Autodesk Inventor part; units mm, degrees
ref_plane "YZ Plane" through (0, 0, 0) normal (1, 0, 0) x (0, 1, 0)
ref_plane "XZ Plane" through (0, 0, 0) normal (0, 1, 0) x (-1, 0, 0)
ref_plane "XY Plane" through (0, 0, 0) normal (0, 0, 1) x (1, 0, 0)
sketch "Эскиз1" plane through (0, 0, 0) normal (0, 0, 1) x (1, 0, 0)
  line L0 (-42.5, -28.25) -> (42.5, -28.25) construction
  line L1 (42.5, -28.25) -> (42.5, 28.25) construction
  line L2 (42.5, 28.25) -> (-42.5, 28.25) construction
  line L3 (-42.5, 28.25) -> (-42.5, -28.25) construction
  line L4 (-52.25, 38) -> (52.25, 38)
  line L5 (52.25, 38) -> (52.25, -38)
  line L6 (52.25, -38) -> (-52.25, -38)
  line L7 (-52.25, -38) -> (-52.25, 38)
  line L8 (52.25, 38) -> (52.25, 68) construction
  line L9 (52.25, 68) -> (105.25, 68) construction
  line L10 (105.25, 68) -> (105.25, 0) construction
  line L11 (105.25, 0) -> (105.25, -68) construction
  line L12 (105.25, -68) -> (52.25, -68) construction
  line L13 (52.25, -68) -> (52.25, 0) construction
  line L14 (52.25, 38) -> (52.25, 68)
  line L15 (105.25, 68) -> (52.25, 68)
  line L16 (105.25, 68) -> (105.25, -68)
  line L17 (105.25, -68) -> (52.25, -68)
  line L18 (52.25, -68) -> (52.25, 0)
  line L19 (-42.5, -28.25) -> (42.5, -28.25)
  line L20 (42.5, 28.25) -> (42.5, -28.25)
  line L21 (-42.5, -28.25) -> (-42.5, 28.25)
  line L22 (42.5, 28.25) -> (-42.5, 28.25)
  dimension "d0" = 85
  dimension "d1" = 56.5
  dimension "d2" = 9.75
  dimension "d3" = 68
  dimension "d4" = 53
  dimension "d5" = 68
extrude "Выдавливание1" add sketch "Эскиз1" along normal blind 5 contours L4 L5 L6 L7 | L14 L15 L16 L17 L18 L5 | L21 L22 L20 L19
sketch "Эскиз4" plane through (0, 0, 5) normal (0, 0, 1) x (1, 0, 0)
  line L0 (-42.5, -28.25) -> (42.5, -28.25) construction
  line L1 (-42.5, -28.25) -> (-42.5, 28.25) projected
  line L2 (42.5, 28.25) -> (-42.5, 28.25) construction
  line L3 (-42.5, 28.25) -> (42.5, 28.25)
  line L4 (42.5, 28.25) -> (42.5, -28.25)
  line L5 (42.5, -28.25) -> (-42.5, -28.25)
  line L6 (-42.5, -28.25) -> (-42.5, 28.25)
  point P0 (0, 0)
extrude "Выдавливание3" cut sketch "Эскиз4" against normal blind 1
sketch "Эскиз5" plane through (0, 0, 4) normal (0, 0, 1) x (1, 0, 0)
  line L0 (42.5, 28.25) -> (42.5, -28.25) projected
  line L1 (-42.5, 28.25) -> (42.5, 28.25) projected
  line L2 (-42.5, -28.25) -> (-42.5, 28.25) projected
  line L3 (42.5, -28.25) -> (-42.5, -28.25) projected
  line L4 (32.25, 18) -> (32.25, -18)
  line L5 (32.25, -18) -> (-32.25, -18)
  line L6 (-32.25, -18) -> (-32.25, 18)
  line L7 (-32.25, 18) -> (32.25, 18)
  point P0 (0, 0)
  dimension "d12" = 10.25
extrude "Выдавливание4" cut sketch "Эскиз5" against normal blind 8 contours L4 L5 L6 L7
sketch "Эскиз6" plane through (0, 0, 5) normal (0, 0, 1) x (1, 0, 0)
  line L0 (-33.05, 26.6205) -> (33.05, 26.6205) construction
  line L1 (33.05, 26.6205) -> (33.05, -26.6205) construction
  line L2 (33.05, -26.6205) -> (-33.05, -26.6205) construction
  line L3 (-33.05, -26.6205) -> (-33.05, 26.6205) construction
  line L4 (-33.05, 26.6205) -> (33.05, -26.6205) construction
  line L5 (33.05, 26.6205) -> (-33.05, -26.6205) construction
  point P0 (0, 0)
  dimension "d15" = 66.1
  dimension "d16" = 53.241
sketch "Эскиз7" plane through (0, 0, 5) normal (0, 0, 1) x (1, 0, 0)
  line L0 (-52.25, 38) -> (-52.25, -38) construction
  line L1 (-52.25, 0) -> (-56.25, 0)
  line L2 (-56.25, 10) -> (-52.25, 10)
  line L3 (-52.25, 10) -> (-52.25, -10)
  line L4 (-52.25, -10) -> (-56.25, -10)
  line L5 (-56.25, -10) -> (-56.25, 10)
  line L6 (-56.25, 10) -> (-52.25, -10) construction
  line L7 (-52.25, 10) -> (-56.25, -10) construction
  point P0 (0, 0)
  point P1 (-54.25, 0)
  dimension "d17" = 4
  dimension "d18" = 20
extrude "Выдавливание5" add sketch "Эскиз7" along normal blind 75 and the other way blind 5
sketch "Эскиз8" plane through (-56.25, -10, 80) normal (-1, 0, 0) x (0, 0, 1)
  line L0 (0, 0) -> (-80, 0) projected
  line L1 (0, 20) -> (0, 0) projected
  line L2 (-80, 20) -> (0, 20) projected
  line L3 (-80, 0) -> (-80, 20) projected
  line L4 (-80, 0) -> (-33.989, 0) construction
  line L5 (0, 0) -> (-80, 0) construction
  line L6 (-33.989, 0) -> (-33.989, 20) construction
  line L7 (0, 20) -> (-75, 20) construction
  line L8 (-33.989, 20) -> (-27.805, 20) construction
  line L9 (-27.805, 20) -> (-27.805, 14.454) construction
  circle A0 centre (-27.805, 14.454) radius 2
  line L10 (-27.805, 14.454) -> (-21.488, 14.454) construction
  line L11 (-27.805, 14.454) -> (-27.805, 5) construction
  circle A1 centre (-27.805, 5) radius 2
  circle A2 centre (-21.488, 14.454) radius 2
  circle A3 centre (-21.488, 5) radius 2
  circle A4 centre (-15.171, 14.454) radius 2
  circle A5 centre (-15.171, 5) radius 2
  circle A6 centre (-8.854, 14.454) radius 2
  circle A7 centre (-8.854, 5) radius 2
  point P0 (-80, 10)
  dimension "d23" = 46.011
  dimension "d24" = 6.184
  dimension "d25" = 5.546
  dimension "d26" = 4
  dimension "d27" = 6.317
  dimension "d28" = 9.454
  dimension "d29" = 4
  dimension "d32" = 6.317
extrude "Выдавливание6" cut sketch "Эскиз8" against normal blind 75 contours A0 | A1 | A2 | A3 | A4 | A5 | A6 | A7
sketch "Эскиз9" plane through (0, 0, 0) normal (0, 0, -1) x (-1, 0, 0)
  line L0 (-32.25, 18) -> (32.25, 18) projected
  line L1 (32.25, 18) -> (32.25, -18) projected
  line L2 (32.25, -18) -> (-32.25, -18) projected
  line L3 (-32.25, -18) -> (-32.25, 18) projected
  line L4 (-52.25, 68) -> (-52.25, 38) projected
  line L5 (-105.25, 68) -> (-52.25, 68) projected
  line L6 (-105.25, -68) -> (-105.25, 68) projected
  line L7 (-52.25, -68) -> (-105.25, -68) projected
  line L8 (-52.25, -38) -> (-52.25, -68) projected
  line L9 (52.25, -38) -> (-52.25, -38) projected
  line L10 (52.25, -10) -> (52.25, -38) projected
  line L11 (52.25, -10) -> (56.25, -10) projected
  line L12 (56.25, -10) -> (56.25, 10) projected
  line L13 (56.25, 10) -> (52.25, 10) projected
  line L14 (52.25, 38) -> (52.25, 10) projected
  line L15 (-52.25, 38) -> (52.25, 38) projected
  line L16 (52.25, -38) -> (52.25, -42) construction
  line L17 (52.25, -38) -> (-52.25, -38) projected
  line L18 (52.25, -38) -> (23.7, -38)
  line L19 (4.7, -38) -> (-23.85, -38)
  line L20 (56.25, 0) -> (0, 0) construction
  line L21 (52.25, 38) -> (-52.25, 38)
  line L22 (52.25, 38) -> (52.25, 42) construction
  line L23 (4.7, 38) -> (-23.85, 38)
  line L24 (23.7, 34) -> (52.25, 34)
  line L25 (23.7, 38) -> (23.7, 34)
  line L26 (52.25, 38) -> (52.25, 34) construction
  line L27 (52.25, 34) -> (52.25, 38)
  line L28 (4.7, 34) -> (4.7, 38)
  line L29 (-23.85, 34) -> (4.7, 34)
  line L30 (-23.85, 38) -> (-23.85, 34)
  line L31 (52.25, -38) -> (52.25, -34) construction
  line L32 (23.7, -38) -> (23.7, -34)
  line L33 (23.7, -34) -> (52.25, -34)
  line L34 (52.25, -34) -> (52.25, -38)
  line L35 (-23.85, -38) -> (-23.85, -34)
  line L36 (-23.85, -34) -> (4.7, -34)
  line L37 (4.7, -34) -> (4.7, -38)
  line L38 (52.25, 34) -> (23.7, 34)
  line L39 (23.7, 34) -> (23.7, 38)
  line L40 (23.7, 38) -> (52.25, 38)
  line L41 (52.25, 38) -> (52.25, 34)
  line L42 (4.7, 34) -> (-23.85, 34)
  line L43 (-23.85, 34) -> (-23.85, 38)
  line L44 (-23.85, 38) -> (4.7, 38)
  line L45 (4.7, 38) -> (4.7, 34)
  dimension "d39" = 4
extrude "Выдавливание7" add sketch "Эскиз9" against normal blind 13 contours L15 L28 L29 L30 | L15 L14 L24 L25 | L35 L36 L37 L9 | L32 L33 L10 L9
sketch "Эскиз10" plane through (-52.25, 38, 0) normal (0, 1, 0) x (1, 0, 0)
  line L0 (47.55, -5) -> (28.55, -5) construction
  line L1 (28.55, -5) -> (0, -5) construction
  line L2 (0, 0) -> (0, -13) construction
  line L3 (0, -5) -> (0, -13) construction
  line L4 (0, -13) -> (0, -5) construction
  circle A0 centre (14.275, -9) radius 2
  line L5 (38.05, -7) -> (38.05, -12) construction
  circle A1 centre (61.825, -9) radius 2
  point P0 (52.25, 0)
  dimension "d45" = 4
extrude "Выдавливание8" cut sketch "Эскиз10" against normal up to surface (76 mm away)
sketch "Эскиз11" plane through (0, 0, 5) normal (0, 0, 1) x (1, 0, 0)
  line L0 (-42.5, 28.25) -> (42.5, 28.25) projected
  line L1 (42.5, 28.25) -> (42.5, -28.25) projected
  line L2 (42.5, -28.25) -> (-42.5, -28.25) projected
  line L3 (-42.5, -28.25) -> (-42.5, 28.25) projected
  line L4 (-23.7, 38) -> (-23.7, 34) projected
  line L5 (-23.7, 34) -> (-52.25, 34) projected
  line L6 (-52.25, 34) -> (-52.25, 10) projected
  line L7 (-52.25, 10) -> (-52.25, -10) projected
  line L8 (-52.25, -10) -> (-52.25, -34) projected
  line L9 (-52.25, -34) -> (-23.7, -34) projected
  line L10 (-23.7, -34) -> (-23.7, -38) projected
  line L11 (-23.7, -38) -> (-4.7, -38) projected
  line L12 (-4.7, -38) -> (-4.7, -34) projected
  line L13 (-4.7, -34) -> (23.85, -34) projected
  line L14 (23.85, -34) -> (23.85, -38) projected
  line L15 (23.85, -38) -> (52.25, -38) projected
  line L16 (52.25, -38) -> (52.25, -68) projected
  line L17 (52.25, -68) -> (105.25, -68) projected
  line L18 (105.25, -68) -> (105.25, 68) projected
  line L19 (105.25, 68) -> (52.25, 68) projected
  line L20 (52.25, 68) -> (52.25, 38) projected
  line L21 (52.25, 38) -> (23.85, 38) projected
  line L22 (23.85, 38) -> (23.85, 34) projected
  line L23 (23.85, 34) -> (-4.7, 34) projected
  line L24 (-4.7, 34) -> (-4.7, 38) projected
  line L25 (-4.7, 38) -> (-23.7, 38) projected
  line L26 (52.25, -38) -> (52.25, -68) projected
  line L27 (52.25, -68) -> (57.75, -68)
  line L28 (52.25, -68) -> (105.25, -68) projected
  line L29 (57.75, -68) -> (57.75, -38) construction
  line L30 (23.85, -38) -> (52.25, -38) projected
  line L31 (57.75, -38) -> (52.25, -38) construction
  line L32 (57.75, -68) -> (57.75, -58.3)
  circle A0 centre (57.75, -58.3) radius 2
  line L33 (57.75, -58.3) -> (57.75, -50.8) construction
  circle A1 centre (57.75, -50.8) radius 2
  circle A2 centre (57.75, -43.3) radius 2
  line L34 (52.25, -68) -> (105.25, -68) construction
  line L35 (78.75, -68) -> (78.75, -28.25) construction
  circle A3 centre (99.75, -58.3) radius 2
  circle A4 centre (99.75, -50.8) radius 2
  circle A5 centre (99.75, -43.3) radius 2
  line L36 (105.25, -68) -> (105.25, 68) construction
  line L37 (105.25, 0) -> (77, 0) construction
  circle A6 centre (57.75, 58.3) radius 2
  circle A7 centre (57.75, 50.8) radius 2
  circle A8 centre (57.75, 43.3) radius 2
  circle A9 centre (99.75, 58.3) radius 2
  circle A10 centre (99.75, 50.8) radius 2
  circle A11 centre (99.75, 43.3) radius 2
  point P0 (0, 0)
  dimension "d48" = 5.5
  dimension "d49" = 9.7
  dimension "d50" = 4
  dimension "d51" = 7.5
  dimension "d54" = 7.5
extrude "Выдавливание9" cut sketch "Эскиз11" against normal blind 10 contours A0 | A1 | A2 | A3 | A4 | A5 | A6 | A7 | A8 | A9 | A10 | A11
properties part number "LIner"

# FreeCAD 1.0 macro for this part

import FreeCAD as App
import Part
import Sketcher

doc = App.newDocument("Part")
body = doc.addObject("PartDesign::Body", "Body")

# Sketch on XY plane
sketch1 = doc.addObject("Sketcher::SketchObject", "Sketch")
body.addObject(sketch1)
sketch1.AttachmentSupport = (doc.XY_Plane, [""])
sketch1.MapMode = "FlatFace"
sketch1.addGeometry(Part.LineSegment(App.Vector(52, 38, 0), App.Vector(-52, 38, 0)), False)
sketch1.addGeometry(Part.LineSegment(App.Vector(-52, 38, 0), App.Vector(-52, -38, 0)), False)
sketch1.addGeometry(Part.LineSegment(App.Vector(-52, -38, 0), App.Vector(52, -38, 0)), False)
sketch1.addGeometry(Part.LineSegment(App.Vector(52, -38, 0), App.Vector(52, -68, 0)), False)
sketch1.addGeometry(Part.LineSegment(App.Vector(52, -68, 0), App.Vector(105, -68, 0)), False)
sketch1.addGeometry(Part.LineSegment(App.Vector(105, -68, 0), App.Vector(105, 68, 0)), False)
sketch1.addGeometry(Part.LineSegment(App.Vector(105, 68, 0), App.Vector(52, 68, 0)), False)
sketch1.addGeometry(Part.LineSegment(App.Vector(52, 68, 0), App.Vector(52, 38, 0)), False)
sketch1.addConstraint(Sketcher.Constraint("Coincident", 0, 2, 1, 1))
sketch1.addConstraint(Sketcher.Constraint("Coincident", 1, 2, 2, 1))
sketch1.addConstraint(Sketcher.Constraint("Coincident", 2, 2, 3, 1))
sketch1.addConstraint(Sketcher.Constraint("Coincident", 3, 2, 4, 1))
sketch1.addConstraint(Sketcher.Constraint("Coincident", 4, 2, 5, 1))
sketch1.addConstraint(Sketcher.Constraint("Coincident", 5, 2, 6, 1))
sketch1.addConstraint(Sketcher.Constraint("Coincident", 6, 2, 7, 1))
sketch1.addConstraint(Sketcher.Constraint("Coincident", 7, 2, 0, 1))
sketch1.addConstraint(Sketcher.Constraint("Horizontal", 0))
sketch1.addConstraint(Sketcher.Constraint("Vertical", 1))
sketch1.addConstraint(Sketcher.Constraint("Horizontal", 2))
sketch1.addConstraint(Sketcher.Constraint("Vertical", 3))
sketch1.addConstraint(Sketcher.Constraint("Horizontal", 4))
sketch1.addConstraint(Sketcher.Constraint("Vertical", 5))
sketch1.addConstraint(Sketcher.Constraint("Horizontal", 6))
sketch1.addConstraint(Sketcher.Constraint("Vertical", 7))
sketch1.addConstraint(Sketcher.Constraint("Symmetric", 0, 2, 2, 2, -1, 1))
sketch1.addConstraint(Sketcher.Constraint("Symmetric", 3, 2, 6, 2, -1))
sketch1.addConstraint(Sketcher.Constraint("DistanceX", 4, 1, 4, 2, 53.0))
sketch1.addConstraint(Sketcher.Constraint("DistanceY", 3, 2, -1, 1, 68.0))
sketch1.addConstraint(Sketcher.Constraint("DistanceY", 1, 2, 1, 1, 76.0))
sketch1.addConstraint(Sketcher.Constraint("DistanceX", 0, 2, 0, 1, 104.5))
pad1 = doc.addObject("PartDesign::Pad", "Pad")
body.addObject(pad1)
pad1.Profile = sketch1
pad1.Length = 5

# Sketch on XY plane
sketch2 = doc.addObject("Sketcher::SketchObject", "Sketch001")
body.addObject(sketch2)
sketch2.AttachmentSupport = (doc.XY_Plane, [""])
sketch2.MapMode = "FlatFace"
sketch2.AttachmentOffset = App.Placement(App.Vector(0, 0, 5), App.Rotation())
sketch2.addGeometry(Part.LineSegment(App.Vector(-42, 28, 0), App.Vector(-42, -28, 0)), False)
sketch2.addGeometry(Part.LineSegment(App.Vector(-42, -28, 0), App.Vector(42, -28, 0)), False)
sketch2.addGeometry(Part.LineSegment(App.Vector(42, -28, 0), App.Vector(42, 28, 0)), False)
sketch2.addGeometry(Part.LineSegment(App.Vector(42, 28, 0), App.Vector(-42, 28, 0)), False)
sketch2.addConstraint(Sketcher.Constraint("Coincident", 0, 2, 1, 1))
sketch2.addConstraint(Sketcher.Constraint("Coincident", 1, 2, 2, 1))
sketch2.addConstraint(Sketcher.Constraint("Coincident", 2, 2, 3, 1))
sketch2.addConstraint(Sketcher.Constraint("Coincident", 3, 2, 0, 1))
sketch2.addConstraint(Sketcher.Constraint("Vertical", 0))
sketch2.addConstraint(Sketcher.Constraint("Horizontal", 1))
sketch2.addConstraint(Sketcher.Constraint("Vertical", 2))
sketch2.addConstraint(Sketcher.Constraint("Horizontal", 3))
sketch2.addConstraint(Sketcher.Constraint("Symmetric", 0, 2, 2, 2, -1, 1))
sketch2.addConstraint(Sketcher.Constraint("DistanceX", 1, 1, 1, 2, 85.0))
sketch2.addConstraint(Sketcher.Constraint("DistanceY", 0, 2, 0, 1, 56.5))
pocket1 = doc.addObject("PartDesign::Pocket", "Pocket")
body.addObject(pocket1)
pocket1.Profile = sketch2
pocket1.Length = 1

# Sketch on XY plane
sketch3 = doc.addObject("Sketcher::SketchObject", "Sketch002")
body.addObject(sketch3)
sketch3.AttachmentSupport = (doc.XY_Plane, [""])
sketch3.MapMode = "FlatFace"
sketch3.AttachmentOffset = App.Placement(App.Vector(0, 0, 4), App.Rotation())
sketch3.addGeometry(Part.LineSegment(App.Vector(32, -18, 0), App.Vector(32, 18, 0)), False)
sketch3.addGeometry(Part.LineSegment(App.Vector(32, 18, 0), App.Vector(-32, 18, 0)), False)
sketch3.addGeometry(Part.LineSegment(App.Vector(-32, 18, 0), App.Vector(-32, -18, 0)), False)
sketch3.addGeometry(Part.LineSegment(App.Vector(-32, -18, 0), App.Vector(32, -18, 0)), False)
sketch3.addConstraint(Sketcher.Constraint("Coincident", 0, 2, 1, 1))
sketch3.addConstraint(Sketcher.Constraint("Coincident", 1, 2, 2, 1))
sketch3.addConstraint(Sketcher.Constraint("Coincident", 2, 2, 3, 1))
sketch3.addConstraint(Sketcher.Constraint("Coincident", 3, 2, 0, 1))
sketch3.addConstraint(Sketcher.Constraint("Vertical", 0))
sketch3.addConstraint(Sketcher.Constraint("Horizontal", 1))
sketch3.addConstraint(Sketcher.Constraint("Vertical", 2))
sketch3.addConstraint(Sketcher.Constraint("Horizontal", 3))
sketch3.addConstraint(Sketcher.Constraint("Symmetric", 0, 2, 2, 2, -1, 1))
sketch3.addConstraint(Sketcher.Constraint("DistanceY", 0, 1, 0, 2, 36.0))
sketch3.addConstraint(Sketcher.Constraint("DistanceX", 1, 2, 1, 1, 64.5))
pocket2 = doc.addObject("PartDesign::Pocket", "Pocket001")
body.addObject(pocket2)
pocket2.Profile = sketch3
pocket2.Length = 8

# Sketch on XY plane
sketch4 = doc.addObject("Sketcher::SketchObject", "Sketch003")
body.addObject(sketch4)
sketch4.AttachmentSupport = (doc.XY_Plane, [""])
sketch4.MapMode = "FlatFace"
sketch4.AttachmentOffset = App.Placement(App.Vector(0, 0, 5), App.Rotation())
sketch4.addGeometry(Part.LineSegment(App.Vector(-52.2, -10, 0), App.Vector(-52.2, 10, 0)), False)
sketch4.addGeometry(Part.LineSegment(App.Vector(-52.2, 10, 0), App.Vector(-56.2, 10, 0)), False)
sketch4.addGeometry(Part.LineSegment(App.Vector(-56.2, 10, 0), App.Vector(-56.2, -10, 0)), False)
sketch4.addGeometry(Part.LineSegment(App.Vector(-56.2, -10, 0), App.Vector(-52.2, -10, 0)), False)
sketch4.addConstraint(Sketcher.Constraint("Coincident", 0, 2, 1, 1))
sketch4.addConstraint(Sketcher.Constraint("Coincident", 1, 2, 2, 1))
sketch4.addConstraint(Sketcher.Constraint("Coincident", 2, 2, 3, 1))
sketch4.addConstraint(Sketcher.Constraint("Coincident", 3, 2, 0, 1))
sketch4.addConstraint(Sketcher.Constraint("Vertical", 0))
sketch4.addConstraint(Sketcher.Constraint("Horizontal", 1))
sketch4.addConstraint(Sketcher.Constraint("Vertical", 2))
sketch4.addConstraint(Sketcher.Constraint("Horizontal", 3))
sketch4.addConstraint(Sketcher.Constraint("DistanceX", 1, 2, 1, 1, 4.0))
sketch4.addConstraint(Sketcher.Constraint("DistanceY", 0, 1, 0, 2, 20.0))
sketch4.addConstraint(Sketcher.Constraint("DistanceY", -1, 1, 0, 2, 10.0))
sketch4.addConstraint(Sketcher.Constraint("DistanceX", 0, 2, -1, 1, 52.25))
pad2 = doc.addObject("PartDesign::Pad", "Pad001")
body.addObject(pad2)
pad2.Profile = sketch4
pad2.Type = "TwoLengths"
pad2.Length = 75
pad2.Length2 = 5

# Sketch on YZ plane
sketch5 = doc.addObject("Sketcher::SketchObject", "Sketch004")
body.addObject(sketch5)
sketch5.AttachmentSupport = (doc.YZ_Plane, [""])
sketch5.MapMode = "FlatFace"
sketch5.AttachmentOffset = App.Placement(App.Vector(0, 0, -56.25), App.Rotation())
sketch5.addGeometry(Part.Circle(App.Vector(4.5, 52.2, 0), App.Vector(0, 0, 1), 2), False)
sketch5.addGeometry(Part.Circle(App.Vector(-5, 52.2, 0), App.Vector(0, 0, 1), 2), False)
sketch5.addGeometry(Part.Circle(App.Vector(4.5, 58.5, 0), App.Vector(0, 0, 1), 2), False)
sketch5.addGeometry(Part.Circle(App.Vector(-5, 58.5, 0), App.Vector(0, 0, 1), 2), False)
sketch5.addGeometry(Part.Circle(App.Vector(4.5, 64.8, 0), App.Vector(0, 0, 1), 2), False)
sketch5.addGeometry(Part.Circle(App.Vector(-5, 64.8, 0), App.Vector(0, 0, 1), 2), False)
sketch5.addGeometry(Part.Circle(App.Vector(4.5, 71.1, 0), App.Vector(0, 0, 1), 2), False)
sketch5.addGeometry(Part.Circle(App.Vector(-5, 71.1, 0), App.Vector(0, 0, 1), 2), False)
sketch5.addConstraint(Sketcher.Constraint("Equal", 0, 1))
sketch5.addConstraint(Sketcher.Constraint("Equal", 1, 2))
sketch5.addConstraint(Sketcher.Constraint("Equal", 2, 3))
sketch5.addConstraint(Sketcher.Constraint("Equal", 3, 4))
sketch5.addConstraint(Sketcher.Constraint("Equal", 4, 5))
sketch5.addConstraint(Sketcher.Constraint("Equal", 5, 6))
sketch5.addConstraint(Sketcher.Constraint("Equal", 6, 7))
sketch5.addConstraint(Sketcher.Constraint("Horizontal", 0, 3, 1, 3))
sketch5.addConstraint(Sketcher.Constraint("Horizontal", 2, 3, 3, 3))
sketch5.addConstraint(Sketcher.Constraint("Horizontal", 4, 3, 5, 3))
sketch5.addConstraint(Sketcher.Constraint("Horizontal", 6, 3, 7, 3))
sketch5.addConstraint(Sketcher.Constraint("Vertical", 0, 3, 2, 3))
sketch5.addConstraint(Sketcher.Constraint("Vertical", 1, 3, 3, 3))
sketch5.addConstraint(Sketcher.Constraint("Vertical", 2, 3, 4, 3))
sketch5.addConstraint(Sketcher.Constraint("Vertical", 3, 3, 5, 3))
sketch5.addConstraint(Sketcher.Constraint("Vertical", 4, 3, 6, 3))
sketch5.addConstraint(Sketcher.Constraint("Vertical", 5, 3, 7, 3))
sketch5.addConstraint(Sketcher.Constraint("Diameter", 0, 4.0))
sketch5.addConstraint(Sketcher.Constraint("DistanceX", 1, 3, -1, 1, 5.0))
sketch5.addConstraint(Sketcher.Constraint("DistanceX", 1, 3, 0, 3, 9.454))
sketch5.addConstraint(Sketcher.Constraint("DistanceY", 0, 3, 2, 3, 6.317))
sketch5.addConstraint(Sketcher.Constraint("DistanceY", 2, 3, 4, 3, 6.317))
sketch5.addConstraint(Sketcher.Constraint("DistanceY", 4, 3, 6, 3, 6.317))
sketch5.addConstraint(Sketcher.Constraint("DistanceY", -1, 1, 0, 3, 52.195))
pocket3 = doc.addObject("PartDesign::Pocket", "Pocket002")
body.addObject(pocket3)
pocket3.Profile = sketch5
pocket3.Length = 75
pocket3.Reversed = True

# Sketch on XY plane
sketch6 = doc.addObject("Sketcher::SketchObject", "Sketch005")
body.addObject(sketch6)
sketch6.AttachmentSupport = (doc.XY_Plane, [""])
sketch6.MapMode = "FlatFace"
sketch6.addGeometry(Part.LineSegment(App.Vector(-4.7, 38, 0), App.Vector(23.9, 38, 0)), False)
sketch6.addGeometry(Part.LineSegment(App.Vector(23.9, 38, 0), App.Vector(23.9, 34, 0)), False)
sketch6.addGeometry(Part.LineSegment(App.Vector(23.9, 34, 0), App.Vector(-4.7, 34, 0)), False)
sketch6.addGeometry(Part.LineSegment(App.Vector(-4.7, 34, 0), App.Vector(-4.7, 38, 0)), False)
sketch6.addGeometry(Part.LineSegment(App.Vector(-52.2, 38, 0), App.Vector(-23.7, 38, 0)), False)
sketch6.addGeometry(Part.LineSegment(App.Vector(-23.7, 38, 0), App.Vector(-23.7, 34, 0)), False)
sketch6.addGeometry(Part.LineSegment(App.Vector(-23.7, 34, 0), App.Vector(-52.2, 34, 0)), False)
sketch6.addGeometry(Part.LineSegment(App.Vector(-52.2, 34, 0), App.Vector(-52.2, 38, 0)), False)
sketch6.addGeometry(Part.LineSegment(App.Vector(23.9, -34, 0), App.Vector(23.9, -38, 0)), False)
sketch6.addGeometry(Part.LineSegment(App.Vector(23.9, -38, 0), App.Vector(-4.7, -38, 0)), False)
sketch6.addGeometry(Part.LineSegment(App.Vector(-4.7, -38, 0), App.Vector(-4.7, -34, 0)), False)
sketch6.addGeometry(Part.LineSegment(App.Vector(-4.7, -34, 0), App.Vector(23.9, -34, 0)), False)
sketch6.addGeometry(Part.LineSegment(App.Vector(-23.7, -34, 0), App.Vector(-23.7, -38, 0)), False)
sketch6.addGeometry(Part.LineSegment(App.Vector(-23.7, -38, 0), App.Vector(-52.2, -38, 0)), False)
sketch6.addGeometry(Part.LineSegment(App.Vector(-52.2, -38, 0), App.Vector(-52.2, -34, 0)), False)
sketch6.addGeometry(Part.LineSegment(App.Vector(-52.2, -34, 0), App.Vector(-23.7, -34, 0)), False)
sketch6.addConstraint(Sketcher.Constraint("Coincident", 0, 2, 1, 1))
sketch6.addConstraint(Sketcher.Constraint("Coincident", 1, 2, 2, 1))
sketch6.addConstraint(Sketcher.Constraint("Coincident", 2, 2, 3, 1))
sketch6.addConstraint(Sketcher.Constraint("Coincident", 3, 2, 0, 1))
sketch6.addConstraint(Sketcher.Constraint("Coincident", 4, 2, 5, 1))
sketch6.addConstraint(Sketcher.Constraint("Coincident", 5, 2, 6, 1))
sketch6.addConstraint(Sketcher.Constraint("Coincident", 6, 2, 7, 1))
sketch6.addConstraint(Sketcher.Constraint("Coincident", 7, 2, 4, 1))
sketch6.addConstraint(Sketcher.Constraint("Coincident", 8, 2, 9, 1))
sketch6.addConstraint(Sketcher.Constraint("Coincident", 9, 2, 10, 1))
sketch6.addConstraint(Sketcher.Constraint("Coincident", 10, 2, 11, 1))
sketch6.addConstraint(Sketcher.Constraint("Coincident", 11, 2, 8, 1))
sketch6.addConstraint(Sketcher.Constraint("Coincident", 12, 2, 13, 1))
sketch6.addConstraint(Sketcher.Constraint("Coincident", 13, 2, 14, 1))
sketch6.addConstraint(Sketcher.Constraint("Coincident", 14, 2, 15, 1))
sketch6.addConstraint(Sketcher.Constraint("Coincident", 15, 2, 12, 1))
sketch6.addConstraint(Sketcher.Constraint("Horizontal", 0))
sketch6.addConstraint(Sketcher.Constraint("Vertical", 1))
sketch6.addConstraint(Sketcher.Constraint("Horizontal", 2))
sketch6.addConstraint(Sketcher.Constraint("Vertical", 3))
sketch6.addConstraint(Sketcher.Constraint("Horizontal", 4))
sketch6.addConstraint(Sketcher.Constraint("Vertical", 5))
sketch6.addConstraint(Sketcher.Constraint("Horizontal", 6))
sketch6.addConstraint(Sketcher.Constraint("Vertical", 7))
sketch6.addConstraint(Sketcher.Constraint("Vertical", 8))
sketch6.addConstraint(Sketcher.Constraint("Horizontal", 9))
sketch6.addConstraint(Sketcher.Constraint("Vertical", 10))
sketch6.addConstraint(Sketcher.Constraint("Horizontal", 11))
sketch6.addConstraint(Sketcher.Constraint("Vertical", 12))
sketch6.addConstraint(Sketcher.Constraint("Horizontal", 13))
sketch6.addConstraint(Sketcher.Constraint("Vertical", 14))
sketch6.addConstraint(Sketcher.Constraint("Horizontal", 15))
sketch6.addConstraint(Sketcher.Constraint("Symmetric", 0, 2, 8, 2, -1))
sketch6.addConstraint(Sketcher.Constraint("Symmetric", 2, 2, 10, 2, -1))
sketch6.addConstraint(Sketcher.Constraint("Symmetric", 4, 2, 12, 2, -1))
sketch6.addConstraint(Sketcher.Constraint("Symmetric", 6, 2, 14, 2, -1))
sketch6.addConstraint(Sketcher.Constraint("Horizontal", 3, 2, 4, 2))
sketch6.addConstraint(Sketcher.Constraint("Horizontal", 2, 2, 5, 2))
sketch6.addConstraint(Sketcher.Constraint("Equal", 2, 4))
sketch6.addConstraint(Sketcher.Constraint("DistanceY", 1, 2, 1, 1, 4.0))
sketch6.addConstraint(Sketcher.Constraint("DistanceY", -1, 1, 0, 2, 38.0))
sketch6.addConstraint(Sketcher.Constraint("DistanceX", 4, 2, 3, 2, 19.0))
sketch6.addConstraint(Sketcher.Constraint("DistanceX", 0, 1, 0, 2, 28.55))
sketch6.addConstraint(Sketcher.Constraint("DistanceX", 2, 2, -1, 1, 4.7))
pad3 = doc.addObject("PartDesign::Pad", "Pad002")
body.addObject(pad3)
pad3.Profile = sketch6
pad3.Length = 13

# Sketch on XZ plane
sketch7 = doc.addObject("Sketcher::SketchObject", "Sketch006")
body.addObject(sketch7)
sketch7.AttachmentSupport = (doc.XZ_Plane, [""])
sketch7.MapMode = "FlatFace"
sketch7.AttachmentOffset = App.Placement(App.Vector(0, 0, -38), App.Rotation())
sketch7.addGeometry(Part.Circle(App.Vector(-38, 9, 0), App.Vector(0, 0, 1), 2), False)
sketch7.addGeometry(Part.Circle(App.Vector(9.6, 9, 0), App.Vector(0, 0, 1), 2), False)
sketch7.addConstraint(Sketcher.Constraint("Equal", 0, 1))
sketch7.addConstraint(Sketcher.Constraint("Horizontal", 0, 3, 1, 3))
sketch7.addConstraint(Sketcher.Constraint("Diameter", 0, 4.0))
sketch7.addConstraint(Sketcher.Constraint("DistanceY", -1, 1, 0, 3, 9.0))
sketch7.addConstraint(Sketcher.Constraint("DistanceX", 0, 3, 1, 3, 47.55))
sketch7.addConstraint(Sketcher.Constraint("DistanceX", 0, 3, -1, 1, 37.975))
pocket4 = doc.addObject("PartDesign::Pocket", "Pocket003")
body.addObject(pocket4)
pocket4.Profile = sketch7
pocket4.Length = 76
pocket4.Reversed = True

# Sketch on XY plane
sketch8 = doc.addObject("Sketcher::SketchObject", "Sketch007")
body.addObject(sketch8)
sketch8.AttachmentSupport = (doc.XY_Plane, [""])
sketch8.MapMode = "FlatFace"
sketch8.AttachmentOffset = App.Placement(App.Vector(0, 0, 5), App.Rotation())
sketch8.addGeometry(Part.Circle(App.Vector(57.8, -58.3, 0), App.Vector(0, 0, 1), 2), False)
sketch8.addGeometry(Part.Circle(App.Vector(57.8, -50.8, 0), App.Vector(0, 0, 1), 2), False)
sketch8.addGeometry(Part.Circle(App.Vector(57.8, -43.3, 0), App.Vector(0, 0, 1), 2), False)
sketch8.addGeometry(Part.Circle(App.Vector(99.8, -58.3, 0), App.Vector(0, 0, 1), 2), False)
sketch8.addGeometry(Part.Circle(App.Vector(99.8, -50.8, 0), App.Vector(0, 0, 1), 2), False)
sketch8.addGeometry(Part.Circle(App.Vector(99.8, -43.3, 0), App.Vector(0, 0, 1), 2), False)
sketch8.addGeometry(Part.Circle(App.Vector(57.8, 58.3, 0), App.Vector(0, 0, 1), 2), False)
sketch8.addGeometry(Part.Circle(App.Vector(57.8, 50.8, 0), App.Vector(0, 0, 1), 2), False)
sketch8.addGeometry(Part.Circle(App.Vector(57.8, 43.3, 0), App.Vector(0, 0, 1), 2), False)
sketch8.addGeometry(Part.Circle(App.Vector(99.8, 58.3, 0), App.Vector(0, 0, 1), 2), False)
sketch8.addGeometry(Part.Circle(App.Vector(99.8, 50.8, 0), App.Vector(0, 0, 1), 2), False)
sketch8.addGeometry(Part.Circle(App.Vector(99.8, 43.3, 0), App.Vector(0, 0, 1), 2), False)
sketch8.addConstraint(Sketcher.Constraint("Equal", 0, 1))
sketch8.addConstraint(Sketcher.Constraint("Equal", 1, 2))
sketch8.addConstraint(Sketcher.Constraint("Equal", 2, 3))
sketch8.addConstraint(Sketcher.Constraint("Equal", 3, 4))
sketch8.addConstraint(Sketcher.Constraint("Equal", 4, 5))
sketch8.addConstraint(Sketcher.Constraint("Equal", 5, 6))
sketch8.addConstraint(Sketcher.Constraint("Equal", 6, 7))
sketch8.addConstraint(Sketcher.Constraint("Equal", 7, 8))
sketch8.addConstraint(Sketcher.Constraint("Equal", 8, 9))
sketch8.addConstraint(Sketcher.Constraint("Equal", 9, 10))
sketch8.addConstraint(Sketcher.Constraint("Equal", 10, 11))
sketch8.addConstraint(Sketcher.Constraint("Symmetric", 0, 3, 6, 3, -1))
sketch8.addConstraint(Sketcher.Constraint("Symmetric", 1, 3, 7, 3, -1))
sketch8.addConstraint(Sketcher.Constraint("Symmetric", 2, 3, 8, 3, -1))
sketch8.addConstraint(Sketcher.Constraint("Symmetric", 3, 3, 9, 3, -1))
sketch8.addConstraint(Sketcher.Constraint("Symmetric", 4, 3, 10, 3, -1))
sketch8.addConstraint(Sketcher.Constraint("Symmetric", 5, 3, 11, 3, -1))
sketch8.addConstraint(Sketcher.Constraint("Horizontal", 0, 3, 3, 3))
sketch8.addConstraint(Sketcher.Constraint("Horizontal", 1, 3, 4, 3))
sketch8.addConstraint(Sketcher.Constraint("Horizontal", 2, 3, 5, 3))
sketch8.addConstraint(Sketcher.Constraint("Vertical", 0, 3, 1, 3))
sketch8.addConstraint(Sketcher.Constraint("Vertical", 1, 3, 2, 3))
sketch8.addConstraint(Sketcher.Constraint("Vertical", 3, 3, 4, 3))
sketch8.addConstraint(Sketcher.Constraint("Vertical", 4, 3, 5, 3))
sketch8.addConstraint(Sketcher.Constraint("Diameter", 0, 4.0))
sketch8.addConstraint(Sketcher.Constraint("DistanceY", 0, 3, 1, 3, 7.5))
sketch8.addConstraint(Sketcher.Constraint("DistanceY", 1, 3, 2, 3, 7.5))
sketch8.addConstraint(Sketcher.Constraint("DistanceX", 0, 3, 3, 3, 42.0))
sketch8.addConstraint(Sketcher.Constraint("DistanceY", 0, 3, -1, 1, 58.3))
sketch8.addConstraint(Sketcher.Constraint("DistanceX", -1, 1, 0, 3, 57.75))
pocket5 = doc.addObject("PartDesign::Pocket", "Pocket004")
body.addObject(pocket5)
pocket5.Profile = sketch8
pocket5.Length = 10

doc.recompute()
